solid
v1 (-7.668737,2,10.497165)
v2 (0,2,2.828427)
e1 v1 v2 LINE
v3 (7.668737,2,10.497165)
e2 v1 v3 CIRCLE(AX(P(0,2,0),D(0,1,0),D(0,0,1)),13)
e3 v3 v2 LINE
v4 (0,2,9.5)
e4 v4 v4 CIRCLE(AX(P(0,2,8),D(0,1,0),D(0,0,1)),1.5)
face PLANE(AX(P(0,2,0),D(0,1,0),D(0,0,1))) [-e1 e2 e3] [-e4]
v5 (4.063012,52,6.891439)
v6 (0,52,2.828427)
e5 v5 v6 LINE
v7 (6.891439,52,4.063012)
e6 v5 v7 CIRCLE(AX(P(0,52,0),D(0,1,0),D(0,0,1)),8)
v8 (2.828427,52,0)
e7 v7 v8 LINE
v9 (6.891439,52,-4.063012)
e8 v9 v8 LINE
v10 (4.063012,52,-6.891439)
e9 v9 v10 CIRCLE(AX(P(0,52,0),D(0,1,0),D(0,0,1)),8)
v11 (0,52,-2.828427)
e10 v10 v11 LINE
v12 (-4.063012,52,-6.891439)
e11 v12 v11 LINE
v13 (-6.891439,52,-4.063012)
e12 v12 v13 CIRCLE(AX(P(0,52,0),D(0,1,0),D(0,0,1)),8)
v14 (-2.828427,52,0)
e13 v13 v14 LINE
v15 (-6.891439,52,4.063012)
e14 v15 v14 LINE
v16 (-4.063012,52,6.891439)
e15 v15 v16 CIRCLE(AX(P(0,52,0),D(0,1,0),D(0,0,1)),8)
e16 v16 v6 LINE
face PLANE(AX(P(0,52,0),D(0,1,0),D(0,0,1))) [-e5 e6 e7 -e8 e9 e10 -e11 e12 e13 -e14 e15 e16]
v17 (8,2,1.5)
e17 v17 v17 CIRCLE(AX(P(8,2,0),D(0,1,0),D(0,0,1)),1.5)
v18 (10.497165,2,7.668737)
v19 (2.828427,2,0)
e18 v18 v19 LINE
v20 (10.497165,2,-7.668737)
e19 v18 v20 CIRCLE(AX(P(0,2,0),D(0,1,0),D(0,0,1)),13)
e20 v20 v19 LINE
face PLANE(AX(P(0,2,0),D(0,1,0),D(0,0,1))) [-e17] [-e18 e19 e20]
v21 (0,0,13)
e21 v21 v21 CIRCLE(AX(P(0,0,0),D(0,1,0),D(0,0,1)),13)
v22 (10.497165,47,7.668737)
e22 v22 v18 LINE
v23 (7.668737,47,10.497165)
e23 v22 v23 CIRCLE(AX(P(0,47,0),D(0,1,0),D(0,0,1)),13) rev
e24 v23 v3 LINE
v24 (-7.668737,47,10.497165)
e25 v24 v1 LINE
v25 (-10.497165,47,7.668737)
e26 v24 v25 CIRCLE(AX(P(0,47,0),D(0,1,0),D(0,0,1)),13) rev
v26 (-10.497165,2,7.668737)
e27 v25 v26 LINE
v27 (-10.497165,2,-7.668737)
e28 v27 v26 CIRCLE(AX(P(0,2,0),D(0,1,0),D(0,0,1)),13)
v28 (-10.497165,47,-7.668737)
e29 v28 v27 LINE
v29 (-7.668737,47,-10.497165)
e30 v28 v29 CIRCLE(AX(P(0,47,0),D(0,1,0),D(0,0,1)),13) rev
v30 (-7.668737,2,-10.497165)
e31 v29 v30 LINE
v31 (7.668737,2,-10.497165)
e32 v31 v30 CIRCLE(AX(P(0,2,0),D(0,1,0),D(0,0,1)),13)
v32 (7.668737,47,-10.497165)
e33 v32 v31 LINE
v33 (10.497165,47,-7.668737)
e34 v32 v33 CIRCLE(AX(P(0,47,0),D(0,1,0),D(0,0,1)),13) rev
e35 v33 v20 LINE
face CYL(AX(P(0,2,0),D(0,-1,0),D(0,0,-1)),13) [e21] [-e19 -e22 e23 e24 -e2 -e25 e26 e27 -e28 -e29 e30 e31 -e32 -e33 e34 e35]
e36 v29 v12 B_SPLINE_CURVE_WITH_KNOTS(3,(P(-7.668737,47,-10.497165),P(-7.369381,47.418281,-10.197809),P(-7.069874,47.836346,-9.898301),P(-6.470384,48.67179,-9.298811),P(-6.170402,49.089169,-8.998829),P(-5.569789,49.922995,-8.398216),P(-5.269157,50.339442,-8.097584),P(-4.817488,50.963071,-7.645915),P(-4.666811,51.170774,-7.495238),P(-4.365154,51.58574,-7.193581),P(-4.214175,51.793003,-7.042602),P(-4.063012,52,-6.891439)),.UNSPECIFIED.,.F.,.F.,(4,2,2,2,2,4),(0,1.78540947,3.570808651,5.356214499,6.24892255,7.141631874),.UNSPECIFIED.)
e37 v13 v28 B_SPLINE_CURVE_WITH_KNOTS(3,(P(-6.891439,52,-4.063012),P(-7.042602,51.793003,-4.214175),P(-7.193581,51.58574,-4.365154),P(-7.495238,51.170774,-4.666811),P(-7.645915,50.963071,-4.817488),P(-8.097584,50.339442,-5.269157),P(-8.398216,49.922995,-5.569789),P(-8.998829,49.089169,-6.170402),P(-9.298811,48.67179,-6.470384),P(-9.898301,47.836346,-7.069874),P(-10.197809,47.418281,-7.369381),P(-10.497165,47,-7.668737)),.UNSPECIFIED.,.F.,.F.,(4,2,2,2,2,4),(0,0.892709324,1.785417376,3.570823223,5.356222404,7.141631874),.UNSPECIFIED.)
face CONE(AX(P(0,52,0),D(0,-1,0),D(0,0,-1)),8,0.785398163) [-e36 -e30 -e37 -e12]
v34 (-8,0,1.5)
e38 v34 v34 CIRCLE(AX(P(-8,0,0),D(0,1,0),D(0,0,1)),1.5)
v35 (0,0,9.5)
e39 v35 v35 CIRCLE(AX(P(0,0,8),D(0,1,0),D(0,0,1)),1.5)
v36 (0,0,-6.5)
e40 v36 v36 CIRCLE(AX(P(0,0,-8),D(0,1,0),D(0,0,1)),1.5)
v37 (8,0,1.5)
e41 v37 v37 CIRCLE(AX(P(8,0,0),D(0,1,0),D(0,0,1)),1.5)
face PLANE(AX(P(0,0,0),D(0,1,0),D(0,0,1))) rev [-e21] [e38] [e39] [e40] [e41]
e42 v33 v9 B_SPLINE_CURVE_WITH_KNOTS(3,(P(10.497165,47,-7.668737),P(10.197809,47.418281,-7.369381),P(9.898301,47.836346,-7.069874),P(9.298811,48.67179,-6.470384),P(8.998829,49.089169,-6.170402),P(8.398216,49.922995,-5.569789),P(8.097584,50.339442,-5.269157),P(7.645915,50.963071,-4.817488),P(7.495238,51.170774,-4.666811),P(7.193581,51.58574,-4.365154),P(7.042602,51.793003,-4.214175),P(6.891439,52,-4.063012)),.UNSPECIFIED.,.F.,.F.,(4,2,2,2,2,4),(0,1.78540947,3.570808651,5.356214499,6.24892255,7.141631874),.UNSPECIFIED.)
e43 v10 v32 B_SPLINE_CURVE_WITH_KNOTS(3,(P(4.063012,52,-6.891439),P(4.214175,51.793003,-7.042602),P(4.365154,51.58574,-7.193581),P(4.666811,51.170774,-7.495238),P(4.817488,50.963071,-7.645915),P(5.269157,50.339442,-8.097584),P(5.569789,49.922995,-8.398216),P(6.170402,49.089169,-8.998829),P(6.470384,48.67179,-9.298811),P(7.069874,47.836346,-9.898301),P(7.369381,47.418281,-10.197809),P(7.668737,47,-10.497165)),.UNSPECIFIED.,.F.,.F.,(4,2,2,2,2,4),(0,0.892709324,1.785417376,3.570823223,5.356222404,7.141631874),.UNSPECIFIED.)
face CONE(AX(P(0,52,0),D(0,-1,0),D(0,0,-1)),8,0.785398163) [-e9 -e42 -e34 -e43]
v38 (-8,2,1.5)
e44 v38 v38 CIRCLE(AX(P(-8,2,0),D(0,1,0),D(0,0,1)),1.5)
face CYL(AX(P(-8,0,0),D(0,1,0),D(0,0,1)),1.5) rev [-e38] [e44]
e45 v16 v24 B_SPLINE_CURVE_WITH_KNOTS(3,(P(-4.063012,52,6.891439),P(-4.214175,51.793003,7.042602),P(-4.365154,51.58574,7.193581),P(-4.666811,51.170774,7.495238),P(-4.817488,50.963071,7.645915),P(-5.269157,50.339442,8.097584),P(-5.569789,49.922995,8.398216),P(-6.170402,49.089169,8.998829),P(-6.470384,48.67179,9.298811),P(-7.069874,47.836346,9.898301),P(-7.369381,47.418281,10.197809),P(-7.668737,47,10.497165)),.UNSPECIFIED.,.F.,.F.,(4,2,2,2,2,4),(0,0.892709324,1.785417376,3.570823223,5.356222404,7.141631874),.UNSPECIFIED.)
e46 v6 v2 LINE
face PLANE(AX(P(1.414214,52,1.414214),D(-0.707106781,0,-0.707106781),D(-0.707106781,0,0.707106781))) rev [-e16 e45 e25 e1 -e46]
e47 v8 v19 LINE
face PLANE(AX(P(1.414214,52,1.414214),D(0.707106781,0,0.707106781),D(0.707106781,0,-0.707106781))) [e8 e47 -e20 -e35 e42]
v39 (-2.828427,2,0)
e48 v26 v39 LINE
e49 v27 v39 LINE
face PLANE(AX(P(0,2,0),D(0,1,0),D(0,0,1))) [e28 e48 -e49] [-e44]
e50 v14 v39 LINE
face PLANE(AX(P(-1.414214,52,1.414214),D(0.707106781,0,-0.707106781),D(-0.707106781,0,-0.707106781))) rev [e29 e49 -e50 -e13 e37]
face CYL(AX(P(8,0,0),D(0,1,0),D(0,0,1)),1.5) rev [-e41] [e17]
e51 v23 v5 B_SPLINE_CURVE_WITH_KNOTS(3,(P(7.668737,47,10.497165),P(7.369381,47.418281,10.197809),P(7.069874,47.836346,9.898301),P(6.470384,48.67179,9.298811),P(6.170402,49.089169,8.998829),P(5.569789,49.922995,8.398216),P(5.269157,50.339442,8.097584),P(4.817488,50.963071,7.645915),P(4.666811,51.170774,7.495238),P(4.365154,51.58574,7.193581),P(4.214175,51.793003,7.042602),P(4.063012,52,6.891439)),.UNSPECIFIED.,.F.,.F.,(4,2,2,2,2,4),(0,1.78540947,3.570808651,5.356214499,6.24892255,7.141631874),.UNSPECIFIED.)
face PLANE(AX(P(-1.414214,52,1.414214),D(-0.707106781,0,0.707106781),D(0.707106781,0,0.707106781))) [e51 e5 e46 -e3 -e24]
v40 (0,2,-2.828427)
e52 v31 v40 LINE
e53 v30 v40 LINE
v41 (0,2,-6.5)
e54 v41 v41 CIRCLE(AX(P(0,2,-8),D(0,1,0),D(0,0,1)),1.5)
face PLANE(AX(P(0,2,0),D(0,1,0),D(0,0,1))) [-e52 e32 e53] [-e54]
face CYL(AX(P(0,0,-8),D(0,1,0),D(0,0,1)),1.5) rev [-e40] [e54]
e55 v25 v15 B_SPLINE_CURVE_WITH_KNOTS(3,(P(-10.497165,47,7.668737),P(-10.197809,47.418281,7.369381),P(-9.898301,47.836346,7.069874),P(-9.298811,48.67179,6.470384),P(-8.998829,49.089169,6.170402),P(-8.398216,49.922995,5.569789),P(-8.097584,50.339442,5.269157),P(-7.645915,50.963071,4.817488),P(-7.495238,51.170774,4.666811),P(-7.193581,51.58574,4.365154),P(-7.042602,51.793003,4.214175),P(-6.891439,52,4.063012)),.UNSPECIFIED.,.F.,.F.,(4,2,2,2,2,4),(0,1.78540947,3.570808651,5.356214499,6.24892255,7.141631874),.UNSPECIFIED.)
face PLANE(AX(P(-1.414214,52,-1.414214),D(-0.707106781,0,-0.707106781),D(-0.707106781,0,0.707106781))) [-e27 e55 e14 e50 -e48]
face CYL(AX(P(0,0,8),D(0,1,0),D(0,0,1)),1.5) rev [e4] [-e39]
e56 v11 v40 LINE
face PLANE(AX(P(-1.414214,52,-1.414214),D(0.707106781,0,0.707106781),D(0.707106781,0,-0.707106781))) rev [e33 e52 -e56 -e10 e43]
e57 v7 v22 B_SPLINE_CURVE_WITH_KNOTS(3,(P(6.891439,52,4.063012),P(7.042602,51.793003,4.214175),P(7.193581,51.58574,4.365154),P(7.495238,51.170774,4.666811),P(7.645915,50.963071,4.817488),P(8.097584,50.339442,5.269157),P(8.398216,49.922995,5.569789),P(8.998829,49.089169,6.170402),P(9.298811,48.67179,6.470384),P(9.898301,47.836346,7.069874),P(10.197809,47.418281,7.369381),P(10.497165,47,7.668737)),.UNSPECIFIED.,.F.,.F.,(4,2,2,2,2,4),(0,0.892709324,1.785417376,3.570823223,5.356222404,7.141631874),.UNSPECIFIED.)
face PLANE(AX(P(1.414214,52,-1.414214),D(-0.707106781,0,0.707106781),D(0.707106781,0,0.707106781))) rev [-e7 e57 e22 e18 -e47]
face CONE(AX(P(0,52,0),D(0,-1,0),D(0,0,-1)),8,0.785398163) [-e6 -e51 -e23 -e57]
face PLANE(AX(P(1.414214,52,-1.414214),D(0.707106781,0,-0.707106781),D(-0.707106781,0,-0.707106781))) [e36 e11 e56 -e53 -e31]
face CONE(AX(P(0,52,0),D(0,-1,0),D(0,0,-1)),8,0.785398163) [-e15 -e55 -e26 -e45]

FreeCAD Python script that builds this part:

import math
import FreeCAD as App
import Part
import Sketcher

V = App.Vector
Q = App.Units.Quantity


def edges_at(feature, points):
    """Names of the edges that pass closest to the given points."""
    edges = feature.Shape.Edges
    near = lambda p: min(range(len(edges)), key=lambda i: edges[i].distToShape(Part.Vertex(*p))[0])
    return sorted({f"Edge{near(p) + 1}" for p in points})

doc = App.newDocument("Part")
body = doc.addObject("PartDesign::Body", "Body")

# Sketch on XZ plane
sketch1 = body.newObject("Sketcher::SketchObject", "Sketch")
sketch1.AttachmentSupport = (doc.getObject("XZ_Plane"), [""])
sketch1.MapMode = "FlatFace"
sketch1.addGeometry(Part.Circle(V(0, 0, 0), V(0, 0, 1), 13), False)
sketch1.addConstraint([
    Sketcher.Constraint("Coincident", 0, 3, -1, 1),
    Sketcher.Constraint("Diameter", 0, Q("26 mm")),
])
pad1 = body.newObject("PartDesign::Pad", "Pad")
pad1.Profile = sketch1
pad1.Length = 2
pad1.Reversed = True

# Sketch on XZ plane
sketch2 = body.newObject("Sketcher::SketchObject", "Sketch001")
sketch2.AttachmentSupport = (doc.getObject("XZ_Plane"), [""])
sketch2.MapMode = "FlatFace"
sketch2.AttachmentOffset = App.Placement(V(0, 0, -2), App.Rotation())
sketch2.addGeometry([
    Part.Circle(V(-8, 0, 0), V(0, 0, 1), 1.5),
    Part.Circle(V(0, -8, 0), V(0, 0, 1), 1.5),
    Part.Circle(V(8, 0, 0), V(0, 0, 1), 1.5),
    Part.Circle(V(0, 8, 0), V(0, 0, 1), 1.5),
], False)
sketch2.addConstraint([
    Sketcher.Constraint("Equal", 0, 1),
    Sketcher.Constraint("Equal", 1, 2),
    Sketcher.Constraint("Equal", 2, 3),
    Sketcher.Constraint("Symmetric", 0, 3, 2, 3, -1, 1),
    Sketcher.Constraint("Symmetric", 1, 3, 3, 3, -1, 1),
    Sketcher.Constraint("PointOnObject", 0, 3, -1),
    Sketcher.Constraint("PointOnObject", 1, 3, -2),
    Sketcher.Constraint("Diameter", 0, Q("3 mm")),
    Sketcher.Constraint("DistanceX", 0, 3, -1, 1, Q("8 mm")),
    Sketcher.Constraint("DistanceY", 1, 3, -1, 1, Q("8 mm")),
])
pocket1 = body.newObject("PartDesign::Pocket", "Pocket")
pocket1.Profile = sketch2
pocket1.Type = "ThroughAll"
pocket1.Reversed = True

# Sketch on XZ plane
sketch3 = body.newObject("Sketcher::SketchObject", "Sketch002")
sketch3.AttachmentSupport = (doc.getObject("XZ_Plane"), [""])
sketch3.MapMode = "FlatFace"
sketch3.AttachmentOffset = App.Placement(V(0, 0, -2), App.Rotation())
sketch3.addGeometry([
    Part.ArcOfCircle(Part.Circle(V(0, 0, 0), V(0, 0, 1), 13), math.radians(-143.85), math.radians(-126.15)),  # 0
    Part.LineSegment(V(-10.5, -7.7, 0), V(-2.8, 0, 0)),  # 1
    Part.LineSegment(V(-2.8, 0, 0), V(-10.5, 7.7, 0)),  # 2
    Part.ArcOfCircle(Part.Circle(V(0, 0, 0), V(0, 0, 1), 13), math.radians(126.15), math.radians(143.85)),  # 3
    Part.LineSegment(V(-7.7, 10.5, 0), V(0, 2.8, 0)),  # 4
    Part.LineSegment(V(0, 2.8, 0), V(7.7, 10.5, 0)),  # 5
    Part.ArcOfCircle(Part.Circle(V(0, 0, 0), V(0, 0, 1), 13), math.radians(36.15), math.radians(53.85)),  # 6
    Part.LineSegment(V(10.5, 7.7, 0), V(2.8, 0, 0)),  # 7
    Part.LineSegment(V(2.8, 0, 0), V(10.5, -7.7, 0)),  # 8
    Part.ArcOfCircle(Part.Circle(V(0, 0, 0), V(0, 0, 1), 13), math.radians(-53.85), math.radians(-36.15)),  # 9
    Part.LineSegment(V(7.7, -10.5, 0), V(0, -2.8, 0)),  # 10
    Part.LineSegment(V(0, -2.8, 0), V(-7.7, -10.5, 0)),  # 11
], False)
sketch3.addConstraint([
    Sketcher.Constraint("Coincident", 0, 1, 1, 1),
    Sketcher.Constraint("Coincident", 1, 2, 2, 1),
    Sketcher.Constraint("Coincident", 2, 2, 3, 2),
    Sketcher.Constraint("Coincident", 3, 1, 4, 1),
    Sketcher.Constraint("Coincident", 4, 2, 5, 1),
    Sketcher.Constraint("Coincident", 5, 2, 6, 2),
    Sketcher.Constraint("Coincident", 6, 1, 7, 1),
    Sketcher.Constraint("Coincident", 7, 2, 8, 1),
    Sketcher.Constraint("Coincident", 8, 2, 9, 2),
    Sketcher.Constraint("Coincident", 9, 1, 10, 1),
    Sketcher.Constraint("Coincident", 10, 2, 11, 1),
    Sketcher.Constraint("Coincident", 11, 2, 0, 2),
    Sketcher.Constraint("Coincident", 0, 3, -1, 1),
    Sketcher.Constraint("Coincident", 3, 3, -1, 1),
    Sketcher.Constraint("Coincident", 6, 3, -1, 1),
    Sketcher.Constraint("Coincident", 9, 3, -1, 1),
    Sketcher.Constraint("Equal", 0, 3),
    Sketcher.Constraint("Equal", 3, 6),
    Sketcher.Constraint("Equal", 6, 9),
    Sketcher.Constraint("Symmetric", 1, 2, 7, 2, -1, 1),
    Sketcher.Constraint("Symmetric", 4, 2, 10, 2, -1, 1),
    Sketcher.Constraint("PointOnObject", 1, 2, -1),
    Sketcher.Constraint("PointOnObject", 4, 2, -2),
    Sketcher.Constraint("Perpendicular", 1, 2),
    Sketcher.Constraint("Parallel", 2, 4),
    Sketcher.Constraint("Perpendicular", 4, 5),
    Sketcher.Constraint("Parallel", 5, 7),
    Sketcher.Constraint("Perpendicular", 7, 8),
    Sketcher.Constraint("Parallel", 8, 10),
    Sketcher.Constraint("Perpendicular", 10, 11),
    Sketcher.Constraint("Horizontal", 3, 1, 5, 2),
    Sketcher.Constraint("Equal", 2, 4),
    Sketcher.Constraint("Radius", 0, Q("13 mm")),
    Sketcher.Constraint("DistanceX", 3, 1, 1, 2, Q("4.84031 mm")),
])
pad2 = body.newObject("PartDesign::Pad", "Pad001")
pad2.Profile = sketch3
pad2.Length = 50
pad2.Reversed = True
doc.recompute()

chamfer = body.newObject("PartDesign::Chamfer", "Chamfer")
chamfer.Base = (pad2, edges_at(pad2, [
    (-9.192, 52, 9.192),
    (9.192, 52, 9.192),
    (9.192, 52, -9.192),
    (-9.192, 52, -9.192),
]))
chamfer.Size = 5

doc.recompute()
